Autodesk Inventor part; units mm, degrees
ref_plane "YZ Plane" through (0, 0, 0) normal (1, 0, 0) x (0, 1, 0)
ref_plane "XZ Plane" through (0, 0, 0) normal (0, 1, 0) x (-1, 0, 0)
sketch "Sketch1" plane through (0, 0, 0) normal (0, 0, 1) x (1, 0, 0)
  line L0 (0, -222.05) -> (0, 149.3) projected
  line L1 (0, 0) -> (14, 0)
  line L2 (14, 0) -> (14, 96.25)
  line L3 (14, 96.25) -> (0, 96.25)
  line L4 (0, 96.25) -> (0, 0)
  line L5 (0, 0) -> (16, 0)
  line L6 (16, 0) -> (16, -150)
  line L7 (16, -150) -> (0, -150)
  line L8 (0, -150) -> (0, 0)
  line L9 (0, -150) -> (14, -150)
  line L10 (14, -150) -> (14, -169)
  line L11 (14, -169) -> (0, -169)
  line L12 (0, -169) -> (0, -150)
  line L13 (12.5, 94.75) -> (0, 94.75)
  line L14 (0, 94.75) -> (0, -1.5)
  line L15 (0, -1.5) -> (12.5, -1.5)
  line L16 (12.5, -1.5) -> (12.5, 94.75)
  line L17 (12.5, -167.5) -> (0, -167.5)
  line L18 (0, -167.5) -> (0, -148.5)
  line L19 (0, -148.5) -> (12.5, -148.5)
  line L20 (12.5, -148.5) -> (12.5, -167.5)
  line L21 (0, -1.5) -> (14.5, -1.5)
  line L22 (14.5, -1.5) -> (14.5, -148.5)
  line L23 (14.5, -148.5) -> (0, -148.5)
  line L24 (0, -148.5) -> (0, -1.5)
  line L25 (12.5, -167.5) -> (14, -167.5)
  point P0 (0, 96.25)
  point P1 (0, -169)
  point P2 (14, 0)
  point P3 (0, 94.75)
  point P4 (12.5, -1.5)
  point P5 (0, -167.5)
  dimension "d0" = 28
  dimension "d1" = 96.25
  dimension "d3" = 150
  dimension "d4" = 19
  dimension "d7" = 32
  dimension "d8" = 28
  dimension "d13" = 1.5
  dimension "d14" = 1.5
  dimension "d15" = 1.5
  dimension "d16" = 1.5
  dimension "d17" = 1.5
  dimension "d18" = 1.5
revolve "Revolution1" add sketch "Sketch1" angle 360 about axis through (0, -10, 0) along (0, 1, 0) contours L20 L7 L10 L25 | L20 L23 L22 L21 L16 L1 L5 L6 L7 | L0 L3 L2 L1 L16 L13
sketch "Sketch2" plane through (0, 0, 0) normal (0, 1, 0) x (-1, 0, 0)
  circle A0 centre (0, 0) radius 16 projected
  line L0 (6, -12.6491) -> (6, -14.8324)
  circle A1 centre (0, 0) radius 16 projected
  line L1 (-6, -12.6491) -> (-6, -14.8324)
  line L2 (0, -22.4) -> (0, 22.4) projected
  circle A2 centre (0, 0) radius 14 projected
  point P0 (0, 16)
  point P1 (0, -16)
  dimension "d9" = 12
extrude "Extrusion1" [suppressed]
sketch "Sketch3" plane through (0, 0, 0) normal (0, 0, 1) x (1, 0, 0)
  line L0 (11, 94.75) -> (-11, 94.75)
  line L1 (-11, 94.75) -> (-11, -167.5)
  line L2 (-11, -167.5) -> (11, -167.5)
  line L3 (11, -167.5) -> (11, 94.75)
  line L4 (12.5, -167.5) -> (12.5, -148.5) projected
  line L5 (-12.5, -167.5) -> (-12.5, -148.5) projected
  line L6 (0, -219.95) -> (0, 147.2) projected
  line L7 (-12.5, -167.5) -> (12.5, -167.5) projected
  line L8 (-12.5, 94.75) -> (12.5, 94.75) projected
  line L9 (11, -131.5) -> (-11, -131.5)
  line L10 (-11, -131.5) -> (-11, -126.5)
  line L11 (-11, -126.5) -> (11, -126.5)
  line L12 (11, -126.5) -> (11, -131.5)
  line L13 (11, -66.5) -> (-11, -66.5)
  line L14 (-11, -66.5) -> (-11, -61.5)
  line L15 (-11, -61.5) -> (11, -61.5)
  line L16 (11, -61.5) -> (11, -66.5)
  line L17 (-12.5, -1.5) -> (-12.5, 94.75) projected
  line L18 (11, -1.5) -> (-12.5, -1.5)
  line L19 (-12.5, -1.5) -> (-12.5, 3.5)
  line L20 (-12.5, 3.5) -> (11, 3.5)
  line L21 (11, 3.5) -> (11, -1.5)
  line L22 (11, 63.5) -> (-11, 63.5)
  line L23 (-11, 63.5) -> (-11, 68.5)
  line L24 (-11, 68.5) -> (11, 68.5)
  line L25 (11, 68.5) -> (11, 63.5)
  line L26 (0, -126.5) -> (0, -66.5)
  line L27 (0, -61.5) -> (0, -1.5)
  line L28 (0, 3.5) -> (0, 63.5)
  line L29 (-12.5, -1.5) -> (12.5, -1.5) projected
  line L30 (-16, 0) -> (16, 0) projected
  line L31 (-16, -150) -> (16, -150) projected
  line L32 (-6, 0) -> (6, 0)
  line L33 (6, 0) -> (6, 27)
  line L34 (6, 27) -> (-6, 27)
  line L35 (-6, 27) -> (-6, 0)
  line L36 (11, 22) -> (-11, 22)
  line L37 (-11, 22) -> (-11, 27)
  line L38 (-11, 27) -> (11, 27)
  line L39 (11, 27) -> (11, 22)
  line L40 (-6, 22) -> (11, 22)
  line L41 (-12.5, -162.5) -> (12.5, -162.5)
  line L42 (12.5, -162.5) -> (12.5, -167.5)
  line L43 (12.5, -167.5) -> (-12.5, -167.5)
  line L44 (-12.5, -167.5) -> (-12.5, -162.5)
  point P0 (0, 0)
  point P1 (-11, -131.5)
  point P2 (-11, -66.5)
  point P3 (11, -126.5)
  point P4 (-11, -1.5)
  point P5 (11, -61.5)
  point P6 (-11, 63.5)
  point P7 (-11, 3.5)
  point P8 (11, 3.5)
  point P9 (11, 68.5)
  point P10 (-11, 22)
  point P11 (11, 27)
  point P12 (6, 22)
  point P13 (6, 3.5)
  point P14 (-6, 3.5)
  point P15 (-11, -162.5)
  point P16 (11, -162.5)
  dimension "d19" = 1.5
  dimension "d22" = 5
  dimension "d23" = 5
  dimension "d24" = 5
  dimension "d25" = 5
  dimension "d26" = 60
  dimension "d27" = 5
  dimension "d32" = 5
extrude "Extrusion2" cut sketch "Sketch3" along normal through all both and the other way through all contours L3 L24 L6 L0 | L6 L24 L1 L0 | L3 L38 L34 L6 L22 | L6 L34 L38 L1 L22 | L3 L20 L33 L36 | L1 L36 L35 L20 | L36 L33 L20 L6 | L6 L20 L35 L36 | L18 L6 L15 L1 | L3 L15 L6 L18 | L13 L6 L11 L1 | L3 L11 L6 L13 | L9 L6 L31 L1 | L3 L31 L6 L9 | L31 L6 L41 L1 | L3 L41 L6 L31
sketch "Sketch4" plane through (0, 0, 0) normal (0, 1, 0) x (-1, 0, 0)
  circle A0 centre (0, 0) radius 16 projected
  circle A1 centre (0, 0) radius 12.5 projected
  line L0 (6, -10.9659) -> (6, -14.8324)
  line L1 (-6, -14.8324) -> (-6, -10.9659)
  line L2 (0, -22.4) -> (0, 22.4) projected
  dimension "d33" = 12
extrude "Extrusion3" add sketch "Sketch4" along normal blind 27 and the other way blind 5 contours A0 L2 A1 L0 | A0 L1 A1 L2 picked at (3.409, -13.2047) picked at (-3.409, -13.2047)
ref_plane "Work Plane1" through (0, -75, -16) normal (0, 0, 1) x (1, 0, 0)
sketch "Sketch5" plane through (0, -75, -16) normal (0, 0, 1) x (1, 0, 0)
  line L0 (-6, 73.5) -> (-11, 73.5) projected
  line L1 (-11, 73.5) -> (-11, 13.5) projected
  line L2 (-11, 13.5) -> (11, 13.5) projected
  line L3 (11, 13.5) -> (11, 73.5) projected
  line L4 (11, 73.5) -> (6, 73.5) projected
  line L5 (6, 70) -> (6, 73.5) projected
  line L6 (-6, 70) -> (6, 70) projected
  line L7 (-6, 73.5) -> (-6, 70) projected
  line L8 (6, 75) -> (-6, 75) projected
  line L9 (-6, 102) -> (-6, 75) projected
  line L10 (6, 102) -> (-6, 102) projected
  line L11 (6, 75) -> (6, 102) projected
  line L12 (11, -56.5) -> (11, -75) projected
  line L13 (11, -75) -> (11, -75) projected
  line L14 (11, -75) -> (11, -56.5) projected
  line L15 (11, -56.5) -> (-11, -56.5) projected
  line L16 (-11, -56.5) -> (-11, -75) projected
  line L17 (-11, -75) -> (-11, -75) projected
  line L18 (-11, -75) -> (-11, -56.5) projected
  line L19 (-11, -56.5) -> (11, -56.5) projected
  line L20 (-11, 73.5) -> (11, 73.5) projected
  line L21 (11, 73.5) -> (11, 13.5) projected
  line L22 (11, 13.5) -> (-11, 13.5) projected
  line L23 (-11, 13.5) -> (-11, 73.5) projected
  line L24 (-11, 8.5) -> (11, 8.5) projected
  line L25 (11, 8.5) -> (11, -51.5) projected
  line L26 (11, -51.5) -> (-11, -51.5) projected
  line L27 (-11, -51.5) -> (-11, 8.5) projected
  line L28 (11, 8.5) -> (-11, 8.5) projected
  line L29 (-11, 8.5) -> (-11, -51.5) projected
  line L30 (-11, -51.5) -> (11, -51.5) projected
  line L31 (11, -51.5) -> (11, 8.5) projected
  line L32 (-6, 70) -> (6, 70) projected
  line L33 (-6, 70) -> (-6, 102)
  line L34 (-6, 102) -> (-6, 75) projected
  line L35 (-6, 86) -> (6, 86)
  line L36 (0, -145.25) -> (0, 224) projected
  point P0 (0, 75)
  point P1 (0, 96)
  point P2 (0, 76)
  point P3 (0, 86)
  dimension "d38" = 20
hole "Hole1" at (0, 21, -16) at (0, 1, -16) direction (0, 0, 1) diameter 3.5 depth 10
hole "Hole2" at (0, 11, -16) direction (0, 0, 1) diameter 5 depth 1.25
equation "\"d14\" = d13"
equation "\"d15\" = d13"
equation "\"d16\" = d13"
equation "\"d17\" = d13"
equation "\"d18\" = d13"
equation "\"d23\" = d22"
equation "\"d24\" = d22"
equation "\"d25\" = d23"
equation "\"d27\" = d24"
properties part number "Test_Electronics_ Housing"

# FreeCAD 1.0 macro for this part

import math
import FreeCAD as App
import Part
import Sketcher

V = App.Vector


def add_polygon(sketch, points):
    """Adds a closed chain of lines whose ends are joined by coincident constraints."""
    first, n = sketch.GeometryCount, len(points)
    for a, b in zip(points, points[1:] + points[:1]):
        sketch.addGeometry(Part.LineSegment(App.Vector(*a, 0), App.Vector(*b, 0)), False)
    for i in range(n):
        sketch.addConstraint(Sketcher.Constraint("Coincident", first + i, 2, first + (i + 1) % n, 1))

doc = App.newDocument("Part")
body = doc.addObject("PartDesign::Body", "Body")

# Sketch on XY plane
sketch1 = body.newObject("Sketcher::SketchObject", "Sketch")
sketch1.AttachmentSupport = (doc.getObject("XY_Plane"), [""])
sketch1.MapMode = "FlatFace"
add_polygon(sketch1, [(12.5, -167.5), (14, -167.5), (14, -150), (16, -150), (16, 0), (14, 0), (14, 96.2), (0, 96.2), (0, 94.8), (12.5, 94.8), (12.5, -1.5), (14.5, -1.5), (14.5, -148.5), (12.5, -148.5)])  # lines 0-13
sketch1.addConstraint(Sketcher.Constraint("Horizontal", 0))
sketch1.addConstraint(Sketcher.Constraint("Vertical", 1))
sketch1.addConstraint(Sketcher.Constraint("Horizontal", 2))
sketch1.addConstraint(Sketcher.Constraint("Vertical", 3))
sketch1.addConstraint(Sketcher.Constraint("Horizontal", 4))
sketch1.addConstraint(Sketcher.Constraint("Vertical", 5))
sketch1.addConstraint(Sketcher.Constraint("Horizontal", 6))
sketch1.addConstraint(Sketcher.Constraint("Vertical", 7))
sketch1.addConstraint(Sketcher.Constraint("Horizontal", 8))
sketch1.addConstraint(Sketcher.Constraint("Vertical", 9))
sketch1.addConstraint(Sketcher.Constraint("Horizontal", 10))
sketch1.addConstraint(Sketcher.Constraint("Vertical", 11))
sketch1.addConstraint(Sketcher.Constraint("Horizontal", 12))
sketch1.addConstraint(Sketcher.Constraint("Vertical", 13))
sketch1.addConstraint(Sketcher.Constraint("PointOnObject", 3, 2, -1))
sketch1.addConstraint(Sketcher.Constraint("PointOnObject", 6, 2, -2))
sketch1.addConstraint(Sketcher.Constraint("Vertical", 1, 2, 4, 2))
sketch1.addConstraint(Sketcher.Constraint("Vertical", 9, 2, 12, 2))
sketch1.addConstraint(Sketcher.Constraint("Equal", 4, 10))
sketch1.addConstraint(Sketcher.Constraint("Equal", 0, 7))
sketch1.addConstraint(Sketcher.Constraint("Equal", 5, 9))
sketch1.addConstraint(Sketcher.Constraint("DistanceY", 3, 1, 3, 2, 150.0))
sketch1.addConstraint(Sketcher.Constraint("DistanceY", 13, 2, 13, 1, 19.0))
sketch1.addConstraint(Sketcher.Constraint("DistanceX", 0, 1, 0, 2, 1.5))
sketch1.addConstraint(Sketcher.Constraint("DistanceY", 5, 1, 5, 2, 96.25))
sketch1.addConstraint(Sketcher.Constraint("DistanceY", 1, 2, 11, 2, 1.5))
sketch1.addConstraint(Sketcher.Constraint("DistanceX", 2, 1, 2, 2, 2.0))
sketch1.addConstraint(Sketcher.Constraint("DistanceX", 6, 2, 6, 1, 14.0))
revolution = body.newObject("PartDesign::Revolution", "Revolution")
revolution.Profile = sketch1
revolution.ReferenceAxis = (sketch1, ["V_Axis"])
revolution.Angle = 360

# Sketch on XY plane
sketch2 = body.newObject("Sketcher::SketchObject", "Sketch001")
sketch2.AttachmentSupport = (doc.getObject("XY_Plane"), [""])
sketch2.MapMode = "FlatFace"
add_polygon(sketch2, [(11, 68), (11, 95), (-11, 95), (-11, 68)])  # lines 0-3
add_polygon(sketch2, [(11, 27), (11, 64), (-11, 64), (-11, 27)])  # lines 4-7
add_polygon(sketch2, [(11, 4), (11, 22), (-11, 22), (-11, 4)])  # lines 8-11
add_polygon(sketch2, [(-11, -2), (-11, -62), (11, -62), (11, -2)])  # lines 12-15
add_polygon(sketch2, [(-11, -66), (-11, -126), (11, -126), (11, -66)])  # lines 16-19
add_polygon(sketch2, [(-11, -132), (-11, -162), (11, -162), (11, -132)])  # lines 20-23
sketch2.addConstraint(Sketcher.Constraint("Vertical", 0))
sketch2.addConstraint(Sketcher.Constraint("Horizontal", 1))
sketch2.addConstraint(Sketcher.Constraint("Vertical", 2))
sketch2.addConstraint(Sketcher.Constraint("Horizontal", 3))
sketch2.addConstraint(Sketcher.Constraint("Vertical", 4))
sketch2.addConstraint(Sketcher.Constraint("Horizontal", 5))
sketch2.addConstraint(Sketcher.Constraint("Vertical", 6))
sketch2.addConstraint(Sketcher.Constraint("Horizontal", 7))
sketch2.addConstraint(Sketcher.Constraint("Vertical", 8))
sketch2.addConstraint(Sketcher.Constraint("Horizontal", 9))
sketch2.addConstraint(Sketcher.Constraint("Vertical", 10))
sketch2.addConstraint(Sketcher.Constraint("Horizontal", 11))
sketch2.addConstraint(Sketcher.Constraint("Vertical", 12))
sketch2.addConstraint(Sketcher.Constraint("Horizontal", 13))
sketch2.addConstraint(Sketcher.Constraint("Vertical", 14))
sketch2.addConstraint(Sketcher.Constraint("Horizontal", 15))
sketch2.addConstraint(Sketcher.Constraint("Vertical", 16))
sketch2.addConstraint(Sketcher.Constraint("Horizontal", 17))
sketch2.addConstraint(Sketcher.Constraint("Vertical", 18))
sketch2.addConstraint(Sketcher.Constraint("Horizontal", 19))
sketch2.addConstraint(Sketcher.Constraint("Vertical", 20))
sketch2.addConstraint(Sketcher.Constraint("Horizontal", 21))
sketch2.addConstraint(Sketcher.Constraint("Vertical", 22))
sketch2.addConstraint(Sketcher.Constraint("Horizontal", 23))
sketch2.addConstraint(Sketcher.Constraint("Vertical", 3, 2, 4, 2))
sketch2.addConstraint(Sketcher.Constraint("Vertical", 2, 2, 5, 2))
sketch2.addConstraint(Sketcher.Constraint("Vertical", 7, 2, 8, 2))
sketch2.addConstraint(Sketcher.Constraint("Vertical", 6, 2, 9, 2))
sketch2.addConstraint(Sketcher.Constraint("Vertical", 10, 2, 12, 2))
sketch2.addConstraint(Sketcher.Constraint("Vertical", 11, 2, 13, 2))
sketch2.addConstraint(Sketcher.Constraint("Vertical", 15, 2, 16, 2))
sketch2.addConstraint(Sketcher.Constraint("Vertical", 14, 2, 17, 2))
sketch2.addConstraint(Sketcher.Constraint("Vertical", 19, 2, 20, 2))
sketch2.addConstraint(Sketcher.Constraint("Vertical", 18, 2, 21, 2))
sketch2.addConstraint(Sketcher.Constraint("Equal", 14, 16))
sketch2.addConstraint(Sketcher.Constraint("DistanceY", 12, 2, 12, 1, 60.0))
sketch2.addConstraint(Sketcher.Constraint("DistanceY", 4, 2, 3, 2, 5.0))
sketch2.addConstraint(Sketcher.Constraint("DistanceY", 8, 2, 7, 2, 5.0))
sketch2.addConstraint(Sketcher.Constraint("DistanceY", 10, 2, 5, 2, 60.0))
sketch2.addConstraint(Sketcher.Constraint("DistanceY", 14, 2, 11, 2, 5.0))
sketch2.addConstraint(Sketcher.Constraint("DistanceY", 18, 2, 13, 2, 5.0))
sketch2.addConstraint(Sketcher.Constraint("DistanceY", 22, 2, 17, 2, 5.0))
sketch2.addConstraint(Sketcher.Constraint("DistanceY", 14, 2, -1, 1, 1.5))
sketch2.addConstraint(Sketcher.Constraint("DistanceX", 1, 2, 1, 1, 22.0))
sketch2.addConstraint(Sketcher.Constraint("DistanceY", 20, 2, 20, 1, 31.0))
sketch2.addConstraint(Sketcher.Constraint("DistanceY", 4, 1, 4, 2, 36.5))
sketch2.addConstraint(Sketcher.Constraint("DistanceX", -1, 1, 0, 2, 11.0))
sketch2.addConstraint(Sketcher.Constraint("DistanceY", 0, 1, 0, 2, 26.25))
pocket1 = body.newObject("PartDesign::Pocket", "Pocket")
pocket1.Profile = sketch2
pocket1.Type = "ThroughAll"
pocket1.Midplane = True

# Sketch on XZ plane
sketch3 = body.newObject("Sketcher::SketchObject", "Sketch002")
sketch3.AttachmentSupport = (doc.getObject("XZ_Plane"), [""])
sketch3.MapMode = "FlatFace"
sketch3.addGeometry(Part.LineSegment(V(-6, -14.8, 0), V(-6, -11, 0)), False)
sketch3.addGeometry(Part.ArcOfCircle(Part.Circle(V(0, 0, 0), V(0, 0, 1), 12.5), math.radians(-119), math.radians(-61)), False)
sketch3.addGeometry(Part.LineSegment(V(6, -11, 0), V(6, -14.8, 0)), False)
sketch3.addGeometry(Part.ArcOfCircle(Part.Circle(V(0, 0, 0), V(0, 0, 1), 16), math.radians(-112), math.radians(-68)), False)
sketch3.addConstraint(Sketcher.Constraint("Coincident", 0, 2, 1, 1))
sketch3.addConstraint(Sketcher.Constraint("Coincident", 1, 2, 2, 1))
sketch3.addConstraint(Sketcher.Constraint("Coincident", 2, 2, 3, 2))
sketch3.addConstraint(Sketcher.Constraint("Coincident", 3, 1, 0, 1))
sketch3.addConstraint(Sketcher.Constraint("Vertical", 0))
sketch3.addConstraint(Sketcher.Constraint("Vertical", 2))
sketch3.addConstraint(Sketcher.Constraint("Coincident", 1, 3, -1, 1))
sketch3.addConstraint(Sketcher.Constraint("Coincident", 3, 3, -1, 1))
sketch3.addConstraint(Sketcher.Constraint("Horizontal", 0, 2, 1, 2))
sketch3.addConstraint(Sketcher.Constraint("Radius", 3, 16.0))
sketch3.addConstraint(Sketcher.Constraint("DistanceX", 0, 2, 1, 2, 12.0))
sketch3.addConstraint(Sketcher.Constraint("Radius", 1, 12.5))
pad1 = body.newObject("PartDesign::Pad", "Pad")
pad1.Profile = sketch3
pad1.Type = "TwoLengths"
pad1.Length = 27
pad1.Length2 = 5
pad1.Reversed = True

# Sketch on XY plane
sketch4 = body.newObject("Sketcher::SketchObject", "Sketch003")
sketch4.AttachmentSupport = (doc.getObject("XY_Plane"), [""])
sketch4.MapMode = "FlatFace"
sketch4.AttachmentOffset = App.Placement(V(0, 0, -16), App.Rotation())
sketch4.addGeometry(Part.Circle(V(0, 21, 0), V(0, 0, 1), 1.8), False)
sketch4.addGeometry(Part.Circle(V(0, 1, 0), V(0, 0, 1), 1.8), False)
sketch4.addConstraint(Sketcher.Constraint("Equal", 0, 1))
sketch4.addConstraint(Sketcher.Constraint("PointOnObject", 0, 3, -2))
sketch4.addConstraint(Sketcher.Constraint("PointOnObject", 1, 3, -2))
sketch4.addConstraint(Sketcher.Constraint("Diameter", 0, 3.5))
sketch4.addConstraint(Sketcher.Constraint("DistanceY", -1, 1, 0, 3, 21.0))
sketch4.addConstraint(Sketcher.Constraint("DistanceY", -1, 1, 1, 3, 1.0))
doc.recompute()
hole = body.newObject("PartDesign::Hole", "Hole")
hole.Profile = sketch4
hole.ThreadType = "None"
hole.Diameter = 3.5
hole.DepthType = "Dimension"
hole.Depth = 10
hole.DrillPoint = "Flat"
hole.Reversed = True

# Sketch on XY plane
sketch5 = body.newObject("Sketcher::SketchObject", "Sketch004")
sketch5.AttachmentSupport = (doc.getObject("XY_Plane"), [""])
sketch5.MapMode = "FlatFace"
sketch5.AttachmentOffset = App.Placement(V(0, 0, -16), App.Rotation())
sketch5.addGeometry(Part.Circle(V(0, 11, 0), V(0, 0, 1), 2.5), False)
sketch5.addConstraint(Sketcher.Constraint("PointOnObject", 0, 3, -2))
sketch5.addConstraint(Sketcher.Constraint("Diameter", 0, 5.0))
sketch5.addConstraint(Sketcher.Constraint("DistanceY", -1, 1, 0, 3, 11.0))
doc.recompute()
hole2 = body.newObject("PartDesign::Hole", "Hole001")
hole2.Profile = sketch5
hole2.ThreadType = "None"
hole2.Diameter = 5
hole2.DepthType = "Dimension"
hole2.Depth = 1.25
hole2.DrillPoint = "Flat"
hole2.Reversed = True

doc.recompute()
